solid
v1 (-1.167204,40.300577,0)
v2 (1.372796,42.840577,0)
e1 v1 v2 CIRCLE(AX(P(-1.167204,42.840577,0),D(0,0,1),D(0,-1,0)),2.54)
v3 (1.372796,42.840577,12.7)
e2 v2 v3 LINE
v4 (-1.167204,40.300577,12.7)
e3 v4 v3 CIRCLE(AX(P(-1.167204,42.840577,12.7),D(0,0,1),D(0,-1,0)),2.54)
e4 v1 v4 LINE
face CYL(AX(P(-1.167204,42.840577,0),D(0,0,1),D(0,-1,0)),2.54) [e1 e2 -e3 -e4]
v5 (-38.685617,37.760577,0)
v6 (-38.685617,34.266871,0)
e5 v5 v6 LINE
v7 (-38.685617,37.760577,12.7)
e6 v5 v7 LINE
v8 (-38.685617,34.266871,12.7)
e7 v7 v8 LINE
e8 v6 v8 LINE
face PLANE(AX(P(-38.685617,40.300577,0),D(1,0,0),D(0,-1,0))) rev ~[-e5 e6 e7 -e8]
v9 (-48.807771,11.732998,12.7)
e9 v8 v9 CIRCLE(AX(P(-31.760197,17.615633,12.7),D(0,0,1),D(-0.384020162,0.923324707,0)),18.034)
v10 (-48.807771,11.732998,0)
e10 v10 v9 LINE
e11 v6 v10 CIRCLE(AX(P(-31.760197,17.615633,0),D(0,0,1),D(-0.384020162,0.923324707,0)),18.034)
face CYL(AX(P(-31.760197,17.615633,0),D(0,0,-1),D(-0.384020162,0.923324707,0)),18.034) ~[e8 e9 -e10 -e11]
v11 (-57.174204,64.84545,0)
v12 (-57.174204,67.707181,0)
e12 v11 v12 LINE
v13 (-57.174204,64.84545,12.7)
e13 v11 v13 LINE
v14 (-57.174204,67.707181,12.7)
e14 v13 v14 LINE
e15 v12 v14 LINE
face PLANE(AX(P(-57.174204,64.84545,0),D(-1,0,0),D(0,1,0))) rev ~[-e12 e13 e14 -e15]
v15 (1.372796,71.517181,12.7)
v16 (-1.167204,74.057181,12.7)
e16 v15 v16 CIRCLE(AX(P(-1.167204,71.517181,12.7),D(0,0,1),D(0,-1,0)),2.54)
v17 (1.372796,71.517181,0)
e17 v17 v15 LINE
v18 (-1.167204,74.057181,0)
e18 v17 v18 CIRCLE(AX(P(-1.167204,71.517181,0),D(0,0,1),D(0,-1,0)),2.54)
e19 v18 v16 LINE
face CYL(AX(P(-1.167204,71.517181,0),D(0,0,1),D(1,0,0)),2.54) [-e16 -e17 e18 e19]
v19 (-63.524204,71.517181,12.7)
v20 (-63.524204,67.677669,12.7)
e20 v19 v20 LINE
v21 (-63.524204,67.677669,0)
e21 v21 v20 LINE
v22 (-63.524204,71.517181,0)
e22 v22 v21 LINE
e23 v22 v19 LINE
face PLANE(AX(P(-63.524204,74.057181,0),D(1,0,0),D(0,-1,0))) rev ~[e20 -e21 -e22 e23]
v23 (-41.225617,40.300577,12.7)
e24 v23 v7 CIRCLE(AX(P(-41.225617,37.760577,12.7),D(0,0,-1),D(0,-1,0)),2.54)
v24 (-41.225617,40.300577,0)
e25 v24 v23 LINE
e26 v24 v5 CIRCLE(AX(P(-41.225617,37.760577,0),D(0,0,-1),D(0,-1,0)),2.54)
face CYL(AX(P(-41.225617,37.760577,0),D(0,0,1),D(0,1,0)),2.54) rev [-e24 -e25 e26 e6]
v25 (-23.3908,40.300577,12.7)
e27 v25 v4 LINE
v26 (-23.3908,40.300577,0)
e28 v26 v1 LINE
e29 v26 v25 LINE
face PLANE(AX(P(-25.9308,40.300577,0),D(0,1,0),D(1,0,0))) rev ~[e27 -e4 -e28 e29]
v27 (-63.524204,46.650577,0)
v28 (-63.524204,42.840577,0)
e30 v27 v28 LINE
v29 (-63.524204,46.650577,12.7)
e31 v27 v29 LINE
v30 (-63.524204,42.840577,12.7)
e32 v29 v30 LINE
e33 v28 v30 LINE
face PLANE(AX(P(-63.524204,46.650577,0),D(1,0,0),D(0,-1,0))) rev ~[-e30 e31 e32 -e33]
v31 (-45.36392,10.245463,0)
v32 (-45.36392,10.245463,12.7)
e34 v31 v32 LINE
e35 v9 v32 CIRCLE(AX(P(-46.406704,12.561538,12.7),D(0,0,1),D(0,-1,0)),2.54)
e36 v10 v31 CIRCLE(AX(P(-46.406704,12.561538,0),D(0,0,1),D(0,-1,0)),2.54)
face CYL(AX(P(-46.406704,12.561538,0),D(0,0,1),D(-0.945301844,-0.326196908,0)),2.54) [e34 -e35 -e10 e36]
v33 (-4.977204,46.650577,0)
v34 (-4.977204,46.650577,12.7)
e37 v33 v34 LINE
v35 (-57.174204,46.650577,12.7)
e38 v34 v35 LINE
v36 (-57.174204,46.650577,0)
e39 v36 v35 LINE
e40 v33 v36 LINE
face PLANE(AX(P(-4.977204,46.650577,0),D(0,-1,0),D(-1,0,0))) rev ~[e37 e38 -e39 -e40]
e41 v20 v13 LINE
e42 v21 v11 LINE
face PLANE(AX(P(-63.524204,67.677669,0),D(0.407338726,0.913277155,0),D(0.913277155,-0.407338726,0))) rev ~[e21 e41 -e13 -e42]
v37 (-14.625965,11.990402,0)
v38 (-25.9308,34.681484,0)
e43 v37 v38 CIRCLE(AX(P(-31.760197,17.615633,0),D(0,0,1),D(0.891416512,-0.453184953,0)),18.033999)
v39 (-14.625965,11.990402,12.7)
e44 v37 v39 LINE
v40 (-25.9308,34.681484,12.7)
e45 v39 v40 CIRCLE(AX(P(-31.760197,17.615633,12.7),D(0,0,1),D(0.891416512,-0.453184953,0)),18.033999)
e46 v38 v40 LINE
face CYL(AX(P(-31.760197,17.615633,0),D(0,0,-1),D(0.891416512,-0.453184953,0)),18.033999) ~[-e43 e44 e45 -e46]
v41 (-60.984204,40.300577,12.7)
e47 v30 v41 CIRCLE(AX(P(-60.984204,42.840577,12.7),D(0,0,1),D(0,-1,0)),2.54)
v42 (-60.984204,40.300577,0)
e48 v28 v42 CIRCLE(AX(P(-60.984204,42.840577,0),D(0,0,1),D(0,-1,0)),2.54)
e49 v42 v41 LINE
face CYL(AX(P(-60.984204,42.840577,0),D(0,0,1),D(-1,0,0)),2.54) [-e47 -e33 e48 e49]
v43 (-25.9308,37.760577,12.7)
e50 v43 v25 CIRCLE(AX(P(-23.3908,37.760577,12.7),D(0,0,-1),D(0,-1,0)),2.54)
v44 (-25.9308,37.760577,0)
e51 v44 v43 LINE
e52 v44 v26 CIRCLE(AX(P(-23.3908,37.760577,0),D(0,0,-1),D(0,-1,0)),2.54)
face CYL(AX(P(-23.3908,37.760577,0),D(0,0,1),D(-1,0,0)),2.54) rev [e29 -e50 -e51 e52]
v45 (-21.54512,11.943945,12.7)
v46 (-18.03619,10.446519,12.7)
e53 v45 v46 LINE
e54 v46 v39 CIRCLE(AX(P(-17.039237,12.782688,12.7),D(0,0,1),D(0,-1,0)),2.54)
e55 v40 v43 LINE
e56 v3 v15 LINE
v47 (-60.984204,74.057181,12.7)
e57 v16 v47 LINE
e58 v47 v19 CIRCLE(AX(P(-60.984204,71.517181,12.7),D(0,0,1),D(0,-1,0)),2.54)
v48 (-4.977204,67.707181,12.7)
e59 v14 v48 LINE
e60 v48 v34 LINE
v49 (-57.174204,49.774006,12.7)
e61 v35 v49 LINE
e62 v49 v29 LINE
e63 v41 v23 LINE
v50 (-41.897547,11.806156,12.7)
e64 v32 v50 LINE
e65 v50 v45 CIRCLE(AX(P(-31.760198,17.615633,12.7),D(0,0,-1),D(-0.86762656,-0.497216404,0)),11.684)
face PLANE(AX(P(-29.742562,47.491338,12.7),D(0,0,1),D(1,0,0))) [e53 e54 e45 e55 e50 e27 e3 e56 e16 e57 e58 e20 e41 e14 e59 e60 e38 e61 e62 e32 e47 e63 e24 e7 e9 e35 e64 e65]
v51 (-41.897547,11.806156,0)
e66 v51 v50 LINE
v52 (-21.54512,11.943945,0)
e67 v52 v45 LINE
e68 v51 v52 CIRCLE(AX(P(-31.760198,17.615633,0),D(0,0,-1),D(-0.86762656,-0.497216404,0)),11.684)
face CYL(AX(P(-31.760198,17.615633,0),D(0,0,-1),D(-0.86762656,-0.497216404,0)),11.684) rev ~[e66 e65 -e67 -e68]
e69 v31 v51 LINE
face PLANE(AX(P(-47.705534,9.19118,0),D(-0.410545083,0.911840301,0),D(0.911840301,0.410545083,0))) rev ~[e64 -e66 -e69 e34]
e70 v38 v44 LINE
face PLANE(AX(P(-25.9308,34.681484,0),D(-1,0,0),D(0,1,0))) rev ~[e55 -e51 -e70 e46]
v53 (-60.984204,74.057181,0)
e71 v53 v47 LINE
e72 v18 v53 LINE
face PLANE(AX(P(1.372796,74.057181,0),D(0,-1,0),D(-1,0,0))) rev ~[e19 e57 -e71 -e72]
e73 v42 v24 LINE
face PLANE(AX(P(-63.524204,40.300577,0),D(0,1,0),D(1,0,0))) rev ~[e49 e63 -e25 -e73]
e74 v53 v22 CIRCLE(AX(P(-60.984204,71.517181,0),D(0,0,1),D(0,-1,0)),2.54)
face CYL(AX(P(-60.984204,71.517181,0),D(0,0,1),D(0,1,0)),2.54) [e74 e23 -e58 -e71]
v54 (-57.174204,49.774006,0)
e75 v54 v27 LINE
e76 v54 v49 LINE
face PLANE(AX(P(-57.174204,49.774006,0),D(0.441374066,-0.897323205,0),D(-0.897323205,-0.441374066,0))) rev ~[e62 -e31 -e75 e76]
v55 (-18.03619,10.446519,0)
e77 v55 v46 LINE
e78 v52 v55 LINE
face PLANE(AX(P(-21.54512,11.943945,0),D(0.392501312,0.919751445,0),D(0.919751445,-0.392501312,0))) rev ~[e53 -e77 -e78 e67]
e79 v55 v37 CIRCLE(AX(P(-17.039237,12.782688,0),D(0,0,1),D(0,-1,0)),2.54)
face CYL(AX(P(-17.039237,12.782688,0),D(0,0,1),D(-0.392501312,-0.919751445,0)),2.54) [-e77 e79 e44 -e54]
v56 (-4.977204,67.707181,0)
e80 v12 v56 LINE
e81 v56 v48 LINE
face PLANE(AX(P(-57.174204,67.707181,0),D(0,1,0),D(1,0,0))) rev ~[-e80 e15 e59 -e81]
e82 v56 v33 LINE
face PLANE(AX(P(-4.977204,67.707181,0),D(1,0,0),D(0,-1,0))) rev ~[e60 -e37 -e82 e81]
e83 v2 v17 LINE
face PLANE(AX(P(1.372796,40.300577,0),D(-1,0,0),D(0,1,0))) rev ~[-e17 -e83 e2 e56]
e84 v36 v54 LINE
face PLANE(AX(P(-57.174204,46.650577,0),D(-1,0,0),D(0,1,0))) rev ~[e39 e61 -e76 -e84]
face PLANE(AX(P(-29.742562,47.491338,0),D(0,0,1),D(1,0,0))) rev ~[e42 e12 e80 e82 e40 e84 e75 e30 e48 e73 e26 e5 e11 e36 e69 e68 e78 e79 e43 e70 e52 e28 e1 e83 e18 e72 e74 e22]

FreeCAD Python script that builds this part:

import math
import FreeCAD as App
import Part
import Sketcher
Q = App.Units.Quantity


def edges_at(feature, points):
    """Names of the edges that pass closest to the given points."""
    edges = feature.Shape.Edges
    near = lambda p: min(range(len(edges)), key=lambda i: edges[i].distToShape(Part.Vertex(*p))[0])
    return sorted({f"Edge{near(p) + 1}" for p in points})

doc = App.newDocument("Part")
body = doc.addObject("PartDesign::Body", "Body")

# Sketch on XY plane
sketch1 = body.newObject("Sketcher::SketchObject", "Sketch")
sketch1.AttachmentSupport = (doc.getObject("XY_Plane"), [""])
sketch1.MapMode = "FlatFace"
sketch1.addGeometry([
    Part.LineSegment(App.Vector(-5, 46.7, 0), App.Vector(-57.2, 46.7, 0)),  # 0
    Part.LineSegment(App.Vector(-57.2, 46.7, 0), App.Vector(-57.2, 49.8, 0)),  # 1
    Part.LineSegment(App.Vector(-57.2, 49.8, 0), App.Vector(-63.5, 46.7, 0)),  # 2
    Part.LineSegment(App.Vector(-63.5, 46.7, 0), App.Vector(-63.5, 40.3, 0)),  # 3
    Part.LineSegment(App.Vector(-63.5, 40.3, 0), App.Vector(-38.7, 40.3, 0)),  # 4
    Part.LineSegment(App.Vector(-38.7, 40.3, 0), App.Vector(-38.7, 34.3, 0)),  # 5
    Part.ArcOfCircle(Part.Circle(App.Vector(-31.8, 17.6, 0), App.Vector(0, 0, 1), 18), math.radians(113), math.radians(208)),  # 6
    Part.LineSegment(App.Vector(-47.7, 9.2, 0), App.Vector(-41.9, 11.8, 0)),  # 7
    Part.ArcOfCircle(Part.Circle(App.Vector(-31.8, 17.6, 0), App.Vector(0, 0, 1), 11.7), math.radians(-29), math.radians(210)),  # 8
    Part.LineSegment(App.Vector(-21.5, 11.9, 0), App.Vector(-15.7, 9.4, 0)),  # 9
    Part.ArcOfCircle(Part.Circle(App.Vector(-31.8, 17.6, 0), App.Vector(0, 0, 1), 18), math.radians(-27), math.radians(71)),  # 10
    Part.LineSegment(App.Vector(-25.9, 34.7, 0), App.Vector(-25.9, 40.3, 0)),  # 11
    Part.LineSegment(App.Vector(-25.9, 40.3, 0), App.Vector(1.4, 40.3, 0)),  # 12
    Part.LineSegment(App.Vector(1.4, 40.3, 0), App.Vector(1.4, 74.1, 0)),  # 13
    Part.LineSegment(App.Vector(1.4, 74.1, 0), App.Vector(-63.5, 74.1, 0)),  # 14
    Part.LineSegment(App.Vector(-63.5, 74.1, 0), App.Vector(-63.5, 67.7, 0)),  # 15
    Part.LineSegment(App.Vector(-63.5, 67.7, 0), App.Vector(-57.2, 64.8, 0)),  # 16
    Part.LineSegment(App.Vector(-57.2, 64.8, 0), App.Vector(-57.2, 67.7, 0)),  # 17
    Part.LineSegment(App.Vector(-57.2, 67.7, 0), App.Vector(-5, 67.7, 0)),  # 18
    Part.LineSegment(App.Vector(-5, 67.7, 0), App.Vector(-5, 46.7, 0)),  # 19
], False)
sketch1.addConstraint([
    Sketcher.Constraint("Coincident", 0, 2, 1, 1),
    Sketcher.Constraint("Coincident", 1, 2, 2, 1),
    Sketcher.Constraint("Coincident", 2, 2, 3, 1),
    Sketcher.Constraint("Coincident", 3, 2, 4, 1),
    Sketcher.Constraint("Coincident", 4, 2, 5, 1),
    Sketcher.Constraint("Coincident", 5, 2, 6, 1),
    Sketcher.Constraint("Coincident", 6, 2, 7, 1),
    Sketcher.Constraint("Coincident", 7, 2, 8, 2),
    Sketcher.Constraint("Coincident", 8, 1, 9, 1),
    Sketcher.Constraint("Coincident", 9, 2, 10, 1),
    Sketcher.Constraint("Coincident", 10, 2, 11, 1),
    Sketcher.Constraint("Coincident", 11, 2, 12, 1),
    Sketcher.Constraint("Coincident", 12, 2, 13, 1),
    Sketcher.Constraint("Coincident", 13, 2, 14, 1),
    Sketcher.Constraint("Coincident", 14, 2, 15, 1),
    Sketcher.Constraint("Coincident", 15, 2, 16, 1),
    Sketcher.Constraint("Coincident", 16, 2, 17, 1),
    Sketcher.Constraint("Coincident", 17, 2, 18, 1),
    Sketcher.Constraint("Coincident", 18, 2, 19, 1),
    Sketcher.Constraint("Coincident", 19, 2, 0, 1),
    Sketcher.Constraint("Horizontal", 0),
    Sketcher.Constraint("Vertical", 1),
    Sketcher.Constraint("Vertical", 3),
    Sketcher.Constraint("Horizontal", 4),
    Sketcher.Constraint("Vertical", 5),
    Sketcher.Constraint("Vertical", 11),
    Sketcher.Constraint("Horizontal", 12),
    Sketcher.Constraint("Vertical", 13),
    Sketcher.Constraint("Horizontal", 14),
    Sketcher.Constraint("Vertical", 15),
    Sketcher.Constraint("Vertical", 17),
    Sketcher.Constraint("Horizontal", 18),
    Sketcher.Constraint("Vertical", 19),
    Sketcher.Constraint("Coincident", 8, 3, 6, 3),
    Sketcher.Constraint("Coincident", 10, 3, 6, 3),
    Sketcher.Constraint("Equal", 6, 10),
    Sketcher.Constraint("Horizontal", 0, 2, 2, 2),
    Sketcher.Constraint("Horizontal", 4, 2, 11, 2),
    Sketcher.Constraint("Vertical", 3, 2, 14, 2),
    Sketcher.Constraint("Vertical", 1, 2, 16, 2),
    Sketcher.Constraint("Radius", 6, Q("0.71 in")),
    Sketcher.Constraint("Radius", 8, Q("0.46 in")),
    Sketcher.Constraint("DistanceY", 3, 2, 3, 1, Q("0.25 in")),
    Sketcher.Constraint("DistanceX", 0, 2, 0, 1, Q("2.055 in")),
    Sketcher.Constraint("DistanceX", 14, 2, 14, 1, Q("2.555 in")),
    Sketcher.Constraint("DistanceY", 13, 1, 13, 2, Q("1.3290002 in")),
    Sketcher.Constraint("DistanceY", 19, 2, 19, 1, Q("0.8290002 in")),
    Sketcher.Constraint("DistanceX", 2, 2, 0, 2, Q("0.25 in")),
    Sketcher.Constraint("DistanceY", 1, 1, 1, 2, 3.123429),
    Sketcher.Constraint("DistanceY", 17, 1, 17, 2, 2.861731),
    Sketcher.Constraint("DistanceX", 8, 3, -1, 1, 31.760198),
    Sketcher.Constraint("DistanceX", 10, 2, -1, 1, 25.9308),
    Sketcher.Constraint("Distance", 9, 6.372078),
    Sketcher.Constraint("DistanceX", 4, 1, 4, 2, 24.838587),
    Sketcher.Constraint("DistanceX", 12, 1, 12, 2, 27.303596),
    Sketcher.Constraint("DistanceY", 5, 2, 5, 1, 6.033706),
    Sketcher.Constraint("DistanceY", 15, 2, 15, 1, 6.379512),
    Sketcher.Constraint("DistanceY", -1, 1, 5, 2, 34.266871),
    Sketcher.Constraint("DistanceY", -1, 1, 6, 2, 9.19118),
    Sketcher.Constraint("DistanceX", 8, 1, -1, 1, 21.54512),
    Sketcher.Constraint("DistanceX", 7, 2, 8, 3, 10.137349),
])
pad1 = body.newObject("PartDesign::Pad", "Pad")
pad1.Profile = sketch1
pad1.Length = Q("0.5 in")
doc.recompute()

fillet = body.newObject("PartDesign::Fillet", "Fillet")
fillet.Base = (pad1, edges_at(pad1, [
    (-63.524, 74.057, 6.35),
    (-63.524, 40.301, 6.35),
    (-38.686, 40.301, 6.35),
    (-25.931, 40.301, 6.35),
    (1.373, 40.301, 6.35),
    (1.373, 74.057, 6.35),
]))
fillet.Radius = Q("0.1 in")
doc.recompute()

fillet2 = body.newObject("PartDesign::Fillet", "Fillet001")
fillet2.Base = (fillet, edges_at(fillet, [(-15.684, 9.443, 6.35), (-47.706, 9.191, 6.35)]))
fillet2.Radius = Q("0.1 in")

doc.recompute()
